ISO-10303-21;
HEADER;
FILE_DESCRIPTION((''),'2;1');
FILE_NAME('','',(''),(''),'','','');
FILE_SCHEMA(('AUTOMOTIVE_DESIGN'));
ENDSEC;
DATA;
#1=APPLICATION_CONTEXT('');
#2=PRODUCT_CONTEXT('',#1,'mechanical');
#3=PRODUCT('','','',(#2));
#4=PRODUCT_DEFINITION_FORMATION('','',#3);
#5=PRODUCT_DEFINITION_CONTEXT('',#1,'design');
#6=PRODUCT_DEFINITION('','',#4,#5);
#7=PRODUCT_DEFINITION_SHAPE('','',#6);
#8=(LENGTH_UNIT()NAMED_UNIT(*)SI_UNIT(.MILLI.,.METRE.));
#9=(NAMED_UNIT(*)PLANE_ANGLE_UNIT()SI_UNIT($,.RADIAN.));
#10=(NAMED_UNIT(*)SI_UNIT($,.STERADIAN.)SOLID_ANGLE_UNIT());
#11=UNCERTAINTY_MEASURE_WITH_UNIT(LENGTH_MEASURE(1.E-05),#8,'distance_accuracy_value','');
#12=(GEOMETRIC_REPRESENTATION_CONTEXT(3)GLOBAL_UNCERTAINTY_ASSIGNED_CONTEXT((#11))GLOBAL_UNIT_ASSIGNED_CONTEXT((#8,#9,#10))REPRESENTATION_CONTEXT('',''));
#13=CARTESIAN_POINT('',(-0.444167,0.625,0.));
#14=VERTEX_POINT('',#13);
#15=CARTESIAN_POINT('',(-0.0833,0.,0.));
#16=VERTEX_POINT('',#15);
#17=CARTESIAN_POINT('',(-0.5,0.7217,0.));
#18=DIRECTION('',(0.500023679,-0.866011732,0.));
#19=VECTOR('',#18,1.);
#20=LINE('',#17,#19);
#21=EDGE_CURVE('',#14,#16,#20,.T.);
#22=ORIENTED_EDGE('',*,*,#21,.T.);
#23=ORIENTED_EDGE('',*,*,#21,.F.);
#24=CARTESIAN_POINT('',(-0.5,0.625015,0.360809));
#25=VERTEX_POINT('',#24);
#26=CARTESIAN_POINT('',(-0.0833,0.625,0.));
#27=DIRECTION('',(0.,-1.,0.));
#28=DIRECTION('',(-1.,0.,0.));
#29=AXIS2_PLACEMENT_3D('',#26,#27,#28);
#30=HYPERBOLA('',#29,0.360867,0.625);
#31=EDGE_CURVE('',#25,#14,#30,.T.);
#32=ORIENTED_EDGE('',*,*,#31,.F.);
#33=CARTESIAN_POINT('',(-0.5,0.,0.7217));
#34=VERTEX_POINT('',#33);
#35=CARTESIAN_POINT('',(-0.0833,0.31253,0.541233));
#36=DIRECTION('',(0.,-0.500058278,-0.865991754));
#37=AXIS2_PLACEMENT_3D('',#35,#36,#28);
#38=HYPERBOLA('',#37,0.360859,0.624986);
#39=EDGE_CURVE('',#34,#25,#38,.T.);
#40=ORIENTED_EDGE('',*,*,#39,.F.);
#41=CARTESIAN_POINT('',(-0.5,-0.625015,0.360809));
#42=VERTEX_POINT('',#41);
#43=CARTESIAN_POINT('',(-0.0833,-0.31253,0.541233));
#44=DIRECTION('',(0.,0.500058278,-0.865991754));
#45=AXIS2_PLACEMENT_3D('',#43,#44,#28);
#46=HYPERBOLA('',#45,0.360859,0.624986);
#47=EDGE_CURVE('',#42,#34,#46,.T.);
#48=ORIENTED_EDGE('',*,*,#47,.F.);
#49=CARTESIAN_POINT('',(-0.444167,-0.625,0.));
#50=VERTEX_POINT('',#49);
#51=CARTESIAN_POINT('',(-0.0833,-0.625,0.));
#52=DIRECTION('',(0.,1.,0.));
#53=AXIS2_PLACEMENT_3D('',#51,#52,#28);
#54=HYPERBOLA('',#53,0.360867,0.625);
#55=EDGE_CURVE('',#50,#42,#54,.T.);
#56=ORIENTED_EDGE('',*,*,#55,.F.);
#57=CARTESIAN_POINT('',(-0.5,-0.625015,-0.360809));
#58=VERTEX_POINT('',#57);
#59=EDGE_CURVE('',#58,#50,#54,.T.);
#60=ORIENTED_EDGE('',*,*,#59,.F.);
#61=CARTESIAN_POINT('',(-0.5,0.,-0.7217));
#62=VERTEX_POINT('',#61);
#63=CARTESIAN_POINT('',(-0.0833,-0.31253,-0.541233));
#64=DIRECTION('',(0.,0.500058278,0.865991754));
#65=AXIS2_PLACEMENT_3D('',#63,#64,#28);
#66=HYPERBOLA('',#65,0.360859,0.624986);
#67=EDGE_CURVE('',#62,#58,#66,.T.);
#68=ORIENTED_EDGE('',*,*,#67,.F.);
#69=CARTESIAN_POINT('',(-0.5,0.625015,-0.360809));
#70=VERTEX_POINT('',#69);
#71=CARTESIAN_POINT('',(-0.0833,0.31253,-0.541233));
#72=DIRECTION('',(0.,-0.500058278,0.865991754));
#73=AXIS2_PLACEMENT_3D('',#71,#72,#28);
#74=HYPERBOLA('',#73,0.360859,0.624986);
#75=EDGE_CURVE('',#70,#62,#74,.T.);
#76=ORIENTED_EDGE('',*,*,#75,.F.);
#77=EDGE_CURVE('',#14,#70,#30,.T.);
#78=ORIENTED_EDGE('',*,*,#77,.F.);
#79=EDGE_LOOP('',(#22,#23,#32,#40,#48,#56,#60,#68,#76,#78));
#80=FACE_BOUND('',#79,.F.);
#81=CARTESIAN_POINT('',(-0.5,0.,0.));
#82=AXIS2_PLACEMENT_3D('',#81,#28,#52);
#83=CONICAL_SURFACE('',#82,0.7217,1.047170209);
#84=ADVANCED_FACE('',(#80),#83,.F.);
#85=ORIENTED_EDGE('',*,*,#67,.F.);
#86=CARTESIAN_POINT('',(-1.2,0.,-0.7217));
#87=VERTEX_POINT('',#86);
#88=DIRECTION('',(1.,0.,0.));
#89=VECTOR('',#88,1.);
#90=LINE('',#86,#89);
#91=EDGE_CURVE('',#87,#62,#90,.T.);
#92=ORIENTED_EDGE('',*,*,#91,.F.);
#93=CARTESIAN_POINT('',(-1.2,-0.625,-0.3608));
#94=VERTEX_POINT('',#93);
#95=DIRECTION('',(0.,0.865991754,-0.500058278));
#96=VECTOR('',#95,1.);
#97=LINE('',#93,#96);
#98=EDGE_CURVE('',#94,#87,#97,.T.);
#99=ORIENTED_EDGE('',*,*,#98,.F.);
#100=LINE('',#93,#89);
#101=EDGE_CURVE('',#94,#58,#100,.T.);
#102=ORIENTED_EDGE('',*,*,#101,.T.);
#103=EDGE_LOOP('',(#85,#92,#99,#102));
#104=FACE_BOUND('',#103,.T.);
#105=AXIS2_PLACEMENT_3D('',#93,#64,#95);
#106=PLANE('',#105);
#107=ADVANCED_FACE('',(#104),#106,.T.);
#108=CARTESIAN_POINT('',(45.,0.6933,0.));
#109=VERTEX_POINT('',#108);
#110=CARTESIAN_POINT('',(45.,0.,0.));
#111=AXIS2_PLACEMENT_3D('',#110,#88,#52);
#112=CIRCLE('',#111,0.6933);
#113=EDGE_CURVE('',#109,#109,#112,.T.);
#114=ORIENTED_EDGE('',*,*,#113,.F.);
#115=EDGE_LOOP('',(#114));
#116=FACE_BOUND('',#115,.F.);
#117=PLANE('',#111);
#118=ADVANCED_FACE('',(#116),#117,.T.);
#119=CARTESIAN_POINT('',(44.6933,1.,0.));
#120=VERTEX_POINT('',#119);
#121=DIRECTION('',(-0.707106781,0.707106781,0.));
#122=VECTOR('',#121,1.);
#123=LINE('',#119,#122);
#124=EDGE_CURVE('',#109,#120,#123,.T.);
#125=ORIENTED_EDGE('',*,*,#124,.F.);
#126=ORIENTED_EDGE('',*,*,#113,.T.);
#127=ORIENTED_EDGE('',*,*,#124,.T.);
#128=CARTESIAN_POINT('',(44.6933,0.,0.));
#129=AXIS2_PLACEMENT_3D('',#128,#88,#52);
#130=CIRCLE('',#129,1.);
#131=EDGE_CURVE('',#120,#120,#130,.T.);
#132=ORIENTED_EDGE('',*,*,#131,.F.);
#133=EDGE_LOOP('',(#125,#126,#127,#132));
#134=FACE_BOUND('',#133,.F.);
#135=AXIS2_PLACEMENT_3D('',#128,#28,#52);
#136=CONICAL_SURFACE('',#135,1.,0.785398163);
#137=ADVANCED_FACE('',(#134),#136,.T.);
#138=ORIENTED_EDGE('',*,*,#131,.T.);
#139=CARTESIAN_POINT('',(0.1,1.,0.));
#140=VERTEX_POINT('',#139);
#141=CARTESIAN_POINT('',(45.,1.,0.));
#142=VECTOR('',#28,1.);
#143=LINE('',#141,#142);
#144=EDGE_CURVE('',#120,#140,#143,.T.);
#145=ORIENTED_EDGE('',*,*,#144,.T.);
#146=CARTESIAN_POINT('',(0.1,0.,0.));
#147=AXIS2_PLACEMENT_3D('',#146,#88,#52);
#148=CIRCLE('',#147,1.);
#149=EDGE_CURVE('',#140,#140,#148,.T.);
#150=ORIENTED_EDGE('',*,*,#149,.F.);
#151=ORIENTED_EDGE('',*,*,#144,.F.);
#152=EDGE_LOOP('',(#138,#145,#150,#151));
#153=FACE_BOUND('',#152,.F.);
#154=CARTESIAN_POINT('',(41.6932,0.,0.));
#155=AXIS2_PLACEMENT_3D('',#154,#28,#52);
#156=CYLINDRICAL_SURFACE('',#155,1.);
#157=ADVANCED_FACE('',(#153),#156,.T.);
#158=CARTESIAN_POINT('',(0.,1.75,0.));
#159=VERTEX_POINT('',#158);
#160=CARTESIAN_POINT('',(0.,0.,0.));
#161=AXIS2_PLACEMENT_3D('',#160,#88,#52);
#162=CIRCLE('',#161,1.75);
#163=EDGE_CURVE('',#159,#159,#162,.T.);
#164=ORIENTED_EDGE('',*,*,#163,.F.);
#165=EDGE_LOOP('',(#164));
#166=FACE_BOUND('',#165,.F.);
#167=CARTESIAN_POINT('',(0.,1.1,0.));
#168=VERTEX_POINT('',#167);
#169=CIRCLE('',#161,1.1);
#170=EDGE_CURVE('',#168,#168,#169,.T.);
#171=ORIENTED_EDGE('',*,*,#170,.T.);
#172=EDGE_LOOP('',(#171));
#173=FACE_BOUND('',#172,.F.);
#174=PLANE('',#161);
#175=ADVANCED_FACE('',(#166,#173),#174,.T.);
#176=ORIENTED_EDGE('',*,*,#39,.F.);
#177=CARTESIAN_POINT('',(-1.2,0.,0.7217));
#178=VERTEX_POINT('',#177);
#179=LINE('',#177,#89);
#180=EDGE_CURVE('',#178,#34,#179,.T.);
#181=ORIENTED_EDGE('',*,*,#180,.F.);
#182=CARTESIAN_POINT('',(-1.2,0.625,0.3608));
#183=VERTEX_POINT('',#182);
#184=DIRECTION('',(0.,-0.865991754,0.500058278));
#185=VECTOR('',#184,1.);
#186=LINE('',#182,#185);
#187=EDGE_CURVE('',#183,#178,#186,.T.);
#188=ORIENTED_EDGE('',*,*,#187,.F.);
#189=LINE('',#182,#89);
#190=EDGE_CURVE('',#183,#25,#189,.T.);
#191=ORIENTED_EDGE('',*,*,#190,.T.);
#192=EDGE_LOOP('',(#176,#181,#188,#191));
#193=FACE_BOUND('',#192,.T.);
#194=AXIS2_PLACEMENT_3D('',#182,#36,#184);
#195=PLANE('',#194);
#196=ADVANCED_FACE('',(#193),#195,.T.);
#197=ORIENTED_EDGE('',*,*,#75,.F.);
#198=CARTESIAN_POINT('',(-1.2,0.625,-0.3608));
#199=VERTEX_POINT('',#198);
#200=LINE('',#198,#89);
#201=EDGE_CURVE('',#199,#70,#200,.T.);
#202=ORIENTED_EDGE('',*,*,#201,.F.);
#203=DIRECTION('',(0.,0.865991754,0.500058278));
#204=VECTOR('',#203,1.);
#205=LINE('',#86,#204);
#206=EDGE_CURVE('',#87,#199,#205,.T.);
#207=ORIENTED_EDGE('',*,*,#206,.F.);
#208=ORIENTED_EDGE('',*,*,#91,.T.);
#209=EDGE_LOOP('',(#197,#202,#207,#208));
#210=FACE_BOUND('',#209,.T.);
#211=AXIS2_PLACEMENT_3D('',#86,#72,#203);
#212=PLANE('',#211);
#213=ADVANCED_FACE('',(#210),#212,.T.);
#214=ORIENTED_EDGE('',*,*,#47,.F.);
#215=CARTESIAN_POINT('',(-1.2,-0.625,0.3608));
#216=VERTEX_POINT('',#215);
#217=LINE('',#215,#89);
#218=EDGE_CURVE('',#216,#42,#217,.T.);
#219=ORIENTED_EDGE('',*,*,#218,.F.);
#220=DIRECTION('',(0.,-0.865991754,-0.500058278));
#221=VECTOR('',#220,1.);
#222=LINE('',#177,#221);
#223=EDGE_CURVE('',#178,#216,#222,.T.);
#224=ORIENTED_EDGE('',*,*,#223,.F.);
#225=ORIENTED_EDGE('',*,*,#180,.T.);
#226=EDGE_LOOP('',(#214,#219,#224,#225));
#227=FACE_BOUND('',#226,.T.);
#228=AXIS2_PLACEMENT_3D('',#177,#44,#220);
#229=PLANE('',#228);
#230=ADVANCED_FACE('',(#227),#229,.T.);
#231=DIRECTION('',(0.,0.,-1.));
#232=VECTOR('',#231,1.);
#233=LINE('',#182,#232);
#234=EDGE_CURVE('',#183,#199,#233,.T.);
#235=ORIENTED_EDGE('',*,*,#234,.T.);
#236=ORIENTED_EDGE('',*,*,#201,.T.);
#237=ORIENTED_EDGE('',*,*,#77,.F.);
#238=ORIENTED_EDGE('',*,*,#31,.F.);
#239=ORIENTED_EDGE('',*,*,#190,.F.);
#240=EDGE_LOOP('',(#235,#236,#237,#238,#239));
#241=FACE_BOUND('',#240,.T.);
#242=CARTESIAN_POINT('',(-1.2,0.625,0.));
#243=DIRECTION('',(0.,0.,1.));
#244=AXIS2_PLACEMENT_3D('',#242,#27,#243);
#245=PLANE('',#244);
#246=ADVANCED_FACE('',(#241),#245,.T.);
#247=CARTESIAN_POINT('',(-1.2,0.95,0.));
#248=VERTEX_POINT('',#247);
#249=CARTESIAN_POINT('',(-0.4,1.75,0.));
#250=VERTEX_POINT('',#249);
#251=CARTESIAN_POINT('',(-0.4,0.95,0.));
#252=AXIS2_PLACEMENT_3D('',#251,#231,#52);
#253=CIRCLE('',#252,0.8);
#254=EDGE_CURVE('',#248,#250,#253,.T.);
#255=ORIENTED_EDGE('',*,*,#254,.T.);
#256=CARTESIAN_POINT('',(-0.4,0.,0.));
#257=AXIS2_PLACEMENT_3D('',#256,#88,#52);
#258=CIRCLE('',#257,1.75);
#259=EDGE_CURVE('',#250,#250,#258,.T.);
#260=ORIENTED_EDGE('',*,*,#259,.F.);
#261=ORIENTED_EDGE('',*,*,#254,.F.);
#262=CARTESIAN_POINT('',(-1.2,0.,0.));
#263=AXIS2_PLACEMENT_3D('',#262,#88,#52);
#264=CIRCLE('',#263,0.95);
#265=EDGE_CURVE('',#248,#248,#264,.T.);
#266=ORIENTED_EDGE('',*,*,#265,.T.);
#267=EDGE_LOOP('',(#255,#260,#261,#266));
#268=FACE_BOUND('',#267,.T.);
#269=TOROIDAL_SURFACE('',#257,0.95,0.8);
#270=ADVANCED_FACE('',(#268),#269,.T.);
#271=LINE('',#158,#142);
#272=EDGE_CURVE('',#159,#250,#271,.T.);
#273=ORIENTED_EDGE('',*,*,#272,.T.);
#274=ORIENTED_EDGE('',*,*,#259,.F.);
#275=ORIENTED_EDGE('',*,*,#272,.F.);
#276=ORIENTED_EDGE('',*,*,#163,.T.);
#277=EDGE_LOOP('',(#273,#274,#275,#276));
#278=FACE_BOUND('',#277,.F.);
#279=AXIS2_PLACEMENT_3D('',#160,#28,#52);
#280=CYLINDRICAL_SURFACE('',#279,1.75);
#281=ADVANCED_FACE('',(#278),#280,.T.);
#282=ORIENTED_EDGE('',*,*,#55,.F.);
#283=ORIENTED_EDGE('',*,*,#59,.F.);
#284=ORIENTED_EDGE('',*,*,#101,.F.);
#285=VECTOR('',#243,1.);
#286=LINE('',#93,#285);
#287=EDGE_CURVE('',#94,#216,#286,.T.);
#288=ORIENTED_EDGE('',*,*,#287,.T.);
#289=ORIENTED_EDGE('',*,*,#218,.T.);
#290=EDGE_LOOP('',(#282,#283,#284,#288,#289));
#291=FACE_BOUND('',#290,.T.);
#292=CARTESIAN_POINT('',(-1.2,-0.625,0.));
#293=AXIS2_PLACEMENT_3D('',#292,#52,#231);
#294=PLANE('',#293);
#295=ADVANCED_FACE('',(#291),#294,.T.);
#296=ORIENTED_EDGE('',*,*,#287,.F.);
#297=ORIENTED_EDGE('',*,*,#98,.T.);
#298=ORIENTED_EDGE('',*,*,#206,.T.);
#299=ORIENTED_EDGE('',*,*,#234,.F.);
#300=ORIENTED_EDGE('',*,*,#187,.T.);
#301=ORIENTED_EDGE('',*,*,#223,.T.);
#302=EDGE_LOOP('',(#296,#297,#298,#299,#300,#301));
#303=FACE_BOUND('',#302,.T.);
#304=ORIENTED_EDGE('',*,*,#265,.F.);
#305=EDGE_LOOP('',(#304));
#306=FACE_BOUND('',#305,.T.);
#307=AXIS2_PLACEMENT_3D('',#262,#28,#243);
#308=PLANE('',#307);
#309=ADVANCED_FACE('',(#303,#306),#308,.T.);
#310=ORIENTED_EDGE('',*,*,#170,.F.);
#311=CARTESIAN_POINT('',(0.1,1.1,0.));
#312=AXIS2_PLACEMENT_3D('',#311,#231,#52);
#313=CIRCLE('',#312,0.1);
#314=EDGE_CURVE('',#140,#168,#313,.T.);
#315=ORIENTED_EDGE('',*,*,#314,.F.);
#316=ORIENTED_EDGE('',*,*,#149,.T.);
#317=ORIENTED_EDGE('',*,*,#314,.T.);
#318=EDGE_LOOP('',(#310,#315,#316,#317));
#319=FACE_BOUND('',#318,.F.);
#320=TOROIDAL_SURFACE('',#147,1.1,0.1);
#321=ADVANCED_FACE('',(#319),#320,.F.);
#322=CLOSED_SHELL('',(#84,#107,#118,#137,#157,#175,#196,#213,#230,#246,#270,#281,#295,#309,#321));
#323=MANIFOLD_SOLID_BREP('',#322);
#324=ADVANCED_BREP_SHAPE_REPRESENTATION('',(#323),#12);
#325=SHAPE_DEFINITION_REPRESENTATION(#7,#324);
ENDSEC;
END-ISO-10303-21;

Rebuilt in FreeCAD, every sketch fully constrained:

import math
import FreeCAD as App
import Part
import Sketcher

V = App.Vector
Q = App.Units.Quantity


def edges_at(feature, points):
    """Names of the edges that pass closest to the given points."""
    edges = feature.Shape.Edges
    near = lambda p: min(range(len(edges)), key=lambda i: edges[i].distToShape(Part.Vertex(*p))[0])
    return sorted({f"Edge{near(p) + 1}" for p in points})

doc = App.newDocument("Part")
body = doc.addObject("PartDesign::Body", "Body")

sketch1 = body.newObject("Sketcher::SketchObject", "Sketch")
sketch1.AttachmentSupport = (doc.getObject("XY_Plane"), [""])
sketch1.MapMode = "FlatFace"
sketch1.addGeometry([
    Part.LineSegment(V(-0.5, 0.7, 0), V(-0.1, 0, 0)),
    Part.LineSegment(V(-0.1, 0, 0), V(45, 0, 0)),
    Part.LineSegment(V(45, 0, 0), V(45, 1, 0)),
    Part.LineSegment(V(45, 1, 0), V(0, 1, 0)),
    Part.LineSegment(V(0, 1, 0), V(0, 1.8, 0)),
    Part.LineSegment(V(0, 1.8, 0), V(-1.2, 1.8, 0)),
    Part.LineSegment(V(-1.2, 1.8, 0), V(-1.2, 0.7, 0)),
    Part.LineSegment(V(-1.2, 0.7, 0), V(-0.5, 0.7, 0)),
], False)
sketch1.addConstraint([
    Sketcher.Constraint("Coincident", 0, 2, 1, 1),
    Sketcher.Constraint("Coincident", 1, 2, 2, 1),
    Sketcher.Constraint("Coincident", 2, 2, 3, 1),
    Sketcher.Constraint("Coincident", 3, 2, 4, 1),
    Sketcher.Constraint("Coincident", 4, 2, 5, 1),
    Sketcher.Constraint("Coincident", 5, 2, 6, 1),
    Sketcher.Constraint("Coincident", 6, 2, 7, 1),
    Sketcher.Constraint("Coincident", 7, 2, 0, 1),
    Sketcher.Constraint("Horizontal", 1),
    Sketcher.Constraint("Vertical", 2),
    Sketcher.Constraint("Horizontal", 3),
    Sketcher.Constraint("Vertical", 4),
    Sketcher.Constraint("Horizontal", 5),
    Sketcher.Constraint("Vertical", 6),
    Sketcher.Constraint("Horizontal", 7),
    Sketcher.Constraint("PointOnObject", 0, 2, -1),
    Sketcher.Constraint("PointOnObject", 3, 2, -2),
    Sketcher.Constraint("DistanceX", 3, 2, 3, 1, Q("45 mm")),
    Sketcher.Constraint("DistanceX", 5, 2, 5, 1, Q("1.2 mm")),
    Sketcher.Constraint("DistanceX", 7, 1, 7, 2, Q("0.7 mm")),
    Sketcher.Constraint("DistanceY", 2, 1, 2, 2, Q("1 mm")),
    Sketcher.Constraint("DistanceY", 4, 1, 4, 2, Q("0.75 mm")),
    Sketcher.Constraint("DistanceX", 1, 1, 1, 2, Q("45.0833 mm")),
    Sketcher.Constraint("DistanceY", 6, 2, 6, 1, Q("1.0283 mm")),
])
revolution = body.newObject("PartDesign::Revolution", "Revolution")
revolution.Profile = sketch1
revolution.ReferenceAxis = (sketch1, ["H_Axis"])
revolution.Angle = 360

sketch2 = body.newObject("Sketcher::SketchObject", "Sketch001")
sketch2.AttachmentSupport = (doc.getObject("YZ_Plane"), [""])
sketch2.MapMode = "FlatFace"
sketch2.AttachmentOffset = App.Placement(V(0, 0, -1.2), App.Rotation())
sketch2.addGeometry([
    Part.LineSegment(V(0.6, 0.4, 0), V(0, 0.7, 0)),
    Part.ArcOfCircle(Part.Circle(V(0, 0, 0), V(0, 0, 1), 0.7), math.radians(30), math.radians(90)),
    Part.ArcOfCircle(Part.Circle(V(0, 0, 0), V(0, 0, 1), 0.7), math.radians(90), math.radians(150)),
    Part.LineSegment(V(0, 0.7, 0), V(-0.6, 0.4, 0)),
    Part.ArcOfCircle(Part.Circle(V(0, 0, 0), V(0, 0, 1), 0.7), math.radians(-30), math.radians(30)),
    Part.LineSegment(V(0.6, 0.4, 0), V(0.6, -0.4, 0)),
    Part.LineSegment(V(-0.6, 0.4, 0), V(-0.6, -0.4, 0)),
    Part.ArcOfCircle(Part.Circle(V(0, 0, 0), V(0, 0, 1), 0.7), math.radians(150), math.radians(210)),
    Part.LineSegment(V(-0.6, -0.4, 0), V(0, -0.7, 0)),
    Part.ArcOfCircle(Part.Circle(V(0, 0, 0), V(0, 0, 1), 0.7), math.radians(-150), math.radians(-90)),
    Part.ArcOfCircle(Part.Circle(V(0, 0, 0), V(0, 0, 1), 0.7), math.radians(-90), math.radians(-30)),
    Part.LineSegment(V(0, -0.7, 0), V(0.6, -0.4, 0)),
], False)
sketch2.addConstraint([
    Sketcher.Constraint("Coincident", 0, 1, 1, 1),
    Sketcher.Constraint("Coincident", 1, 2, 0, 2),
    Sketcher.Constraint("Coincident", 2, 1, 3, 1),
    Sketcher.Constraint("Coincident", 3, 2, 2, 2),
    Sketcher.Constraint("Coincident", 4, 1, 5, 2),
    Sketcher.Constraint("Coincident", 5, 1, 4, 2),
    Sketcher.Constraint("Coincident", 6, 1, 7, 1),
    Sketcher.Constraint("Coincident", 7, 2, 6, 2),
    Sketcher.Constraint("Coincident", 8, 1, 9, 1),
    Sketcher.Constraint("Coincident", 9, 2, 8, 2),
    Sketcher.Constraint("Coincident", 10, 1, 11, 1),
    Sketcher.Constraint("Coincident", 11, 2, 10, 2),
    Sketcher.Constraint("Vertical", 5),
    Sketcher.Constraint("Vertical", 6),
    Sketcher.Constraint("Coincident", 1, 3, -1, 1),
    Sketcher.Constraint("Coincident", 2, 3, -1, 1),
    Sketcher.Constraint("Coincident", 4, 3, -1, 1),
    Sketcher.Constraint("Coincident", 7, 3, -1, 1),
    Sketcher.Constraint("Coincident", 9, 3, -1, 1),
    Sketcher.Constraint("Coincident", 10, 3, -1, 1),
    Sketcher.Constraint("Coincident", 2, 1, 1, 2),
    Sketcher.Constraint("Coincident", 5, 1, 0, 1),
    Sketcher.Constraint("Coincident", 6, 1, 3, 2),
    Sketcher.Constraint("Coincident", 8, 1, 7, 2),
    Sketcher.Constraint("Coincident", 10, 1, 9, 2),
    Sketcher.Constraint("PointOnObject", 1, 2, -2),
    Sketcher.Constraint("PointOnObject", 9, 2, -2),
    Sketcher.Constraint("Parallel", 0, 8),
    Sketcher.Constraint("Parallel", 3, 11),
    Sketcher.Constraint("Radius", 1, Q("0.7217 mm")),
    Sketcher.Constraint("DistanceY", 5, 2, 5, 1, Q("0.7216 mm")),
])
pad1 = body.newObject("PartDesign::Pad", "Pad")
pad1.Profile = sketch2
pad1.Type = "UpToFirst"
doc.recompute()

fillet = body.newObject("PartDesign::Fillet", "Fillet")
fillet.Base = (pad1, edges_at(pad1, [(-1.2, -1.75, 0)]))
fillet.Radius = 0.8
doc.recompute()

chamfer = body.newObject("PartDesign::Chamfer", "Chamfer")
chamfer.Base = (fillet, edges_at(fillet, [(45, -1, 0)]))
chamfer.ChamferType = "Two distances"
chamfer.Size = 0.3067
chamfer.Size2 = 0.3067
doc.recompute()

fillet2 = body.newObject("PartDesign::Fillet", "Fillet001")
fillet2.Base = (chamfer, edges_at(chamfer, [(0, -1, 0)]))
fillet2.Radius = 0.1

doc.recompute()
